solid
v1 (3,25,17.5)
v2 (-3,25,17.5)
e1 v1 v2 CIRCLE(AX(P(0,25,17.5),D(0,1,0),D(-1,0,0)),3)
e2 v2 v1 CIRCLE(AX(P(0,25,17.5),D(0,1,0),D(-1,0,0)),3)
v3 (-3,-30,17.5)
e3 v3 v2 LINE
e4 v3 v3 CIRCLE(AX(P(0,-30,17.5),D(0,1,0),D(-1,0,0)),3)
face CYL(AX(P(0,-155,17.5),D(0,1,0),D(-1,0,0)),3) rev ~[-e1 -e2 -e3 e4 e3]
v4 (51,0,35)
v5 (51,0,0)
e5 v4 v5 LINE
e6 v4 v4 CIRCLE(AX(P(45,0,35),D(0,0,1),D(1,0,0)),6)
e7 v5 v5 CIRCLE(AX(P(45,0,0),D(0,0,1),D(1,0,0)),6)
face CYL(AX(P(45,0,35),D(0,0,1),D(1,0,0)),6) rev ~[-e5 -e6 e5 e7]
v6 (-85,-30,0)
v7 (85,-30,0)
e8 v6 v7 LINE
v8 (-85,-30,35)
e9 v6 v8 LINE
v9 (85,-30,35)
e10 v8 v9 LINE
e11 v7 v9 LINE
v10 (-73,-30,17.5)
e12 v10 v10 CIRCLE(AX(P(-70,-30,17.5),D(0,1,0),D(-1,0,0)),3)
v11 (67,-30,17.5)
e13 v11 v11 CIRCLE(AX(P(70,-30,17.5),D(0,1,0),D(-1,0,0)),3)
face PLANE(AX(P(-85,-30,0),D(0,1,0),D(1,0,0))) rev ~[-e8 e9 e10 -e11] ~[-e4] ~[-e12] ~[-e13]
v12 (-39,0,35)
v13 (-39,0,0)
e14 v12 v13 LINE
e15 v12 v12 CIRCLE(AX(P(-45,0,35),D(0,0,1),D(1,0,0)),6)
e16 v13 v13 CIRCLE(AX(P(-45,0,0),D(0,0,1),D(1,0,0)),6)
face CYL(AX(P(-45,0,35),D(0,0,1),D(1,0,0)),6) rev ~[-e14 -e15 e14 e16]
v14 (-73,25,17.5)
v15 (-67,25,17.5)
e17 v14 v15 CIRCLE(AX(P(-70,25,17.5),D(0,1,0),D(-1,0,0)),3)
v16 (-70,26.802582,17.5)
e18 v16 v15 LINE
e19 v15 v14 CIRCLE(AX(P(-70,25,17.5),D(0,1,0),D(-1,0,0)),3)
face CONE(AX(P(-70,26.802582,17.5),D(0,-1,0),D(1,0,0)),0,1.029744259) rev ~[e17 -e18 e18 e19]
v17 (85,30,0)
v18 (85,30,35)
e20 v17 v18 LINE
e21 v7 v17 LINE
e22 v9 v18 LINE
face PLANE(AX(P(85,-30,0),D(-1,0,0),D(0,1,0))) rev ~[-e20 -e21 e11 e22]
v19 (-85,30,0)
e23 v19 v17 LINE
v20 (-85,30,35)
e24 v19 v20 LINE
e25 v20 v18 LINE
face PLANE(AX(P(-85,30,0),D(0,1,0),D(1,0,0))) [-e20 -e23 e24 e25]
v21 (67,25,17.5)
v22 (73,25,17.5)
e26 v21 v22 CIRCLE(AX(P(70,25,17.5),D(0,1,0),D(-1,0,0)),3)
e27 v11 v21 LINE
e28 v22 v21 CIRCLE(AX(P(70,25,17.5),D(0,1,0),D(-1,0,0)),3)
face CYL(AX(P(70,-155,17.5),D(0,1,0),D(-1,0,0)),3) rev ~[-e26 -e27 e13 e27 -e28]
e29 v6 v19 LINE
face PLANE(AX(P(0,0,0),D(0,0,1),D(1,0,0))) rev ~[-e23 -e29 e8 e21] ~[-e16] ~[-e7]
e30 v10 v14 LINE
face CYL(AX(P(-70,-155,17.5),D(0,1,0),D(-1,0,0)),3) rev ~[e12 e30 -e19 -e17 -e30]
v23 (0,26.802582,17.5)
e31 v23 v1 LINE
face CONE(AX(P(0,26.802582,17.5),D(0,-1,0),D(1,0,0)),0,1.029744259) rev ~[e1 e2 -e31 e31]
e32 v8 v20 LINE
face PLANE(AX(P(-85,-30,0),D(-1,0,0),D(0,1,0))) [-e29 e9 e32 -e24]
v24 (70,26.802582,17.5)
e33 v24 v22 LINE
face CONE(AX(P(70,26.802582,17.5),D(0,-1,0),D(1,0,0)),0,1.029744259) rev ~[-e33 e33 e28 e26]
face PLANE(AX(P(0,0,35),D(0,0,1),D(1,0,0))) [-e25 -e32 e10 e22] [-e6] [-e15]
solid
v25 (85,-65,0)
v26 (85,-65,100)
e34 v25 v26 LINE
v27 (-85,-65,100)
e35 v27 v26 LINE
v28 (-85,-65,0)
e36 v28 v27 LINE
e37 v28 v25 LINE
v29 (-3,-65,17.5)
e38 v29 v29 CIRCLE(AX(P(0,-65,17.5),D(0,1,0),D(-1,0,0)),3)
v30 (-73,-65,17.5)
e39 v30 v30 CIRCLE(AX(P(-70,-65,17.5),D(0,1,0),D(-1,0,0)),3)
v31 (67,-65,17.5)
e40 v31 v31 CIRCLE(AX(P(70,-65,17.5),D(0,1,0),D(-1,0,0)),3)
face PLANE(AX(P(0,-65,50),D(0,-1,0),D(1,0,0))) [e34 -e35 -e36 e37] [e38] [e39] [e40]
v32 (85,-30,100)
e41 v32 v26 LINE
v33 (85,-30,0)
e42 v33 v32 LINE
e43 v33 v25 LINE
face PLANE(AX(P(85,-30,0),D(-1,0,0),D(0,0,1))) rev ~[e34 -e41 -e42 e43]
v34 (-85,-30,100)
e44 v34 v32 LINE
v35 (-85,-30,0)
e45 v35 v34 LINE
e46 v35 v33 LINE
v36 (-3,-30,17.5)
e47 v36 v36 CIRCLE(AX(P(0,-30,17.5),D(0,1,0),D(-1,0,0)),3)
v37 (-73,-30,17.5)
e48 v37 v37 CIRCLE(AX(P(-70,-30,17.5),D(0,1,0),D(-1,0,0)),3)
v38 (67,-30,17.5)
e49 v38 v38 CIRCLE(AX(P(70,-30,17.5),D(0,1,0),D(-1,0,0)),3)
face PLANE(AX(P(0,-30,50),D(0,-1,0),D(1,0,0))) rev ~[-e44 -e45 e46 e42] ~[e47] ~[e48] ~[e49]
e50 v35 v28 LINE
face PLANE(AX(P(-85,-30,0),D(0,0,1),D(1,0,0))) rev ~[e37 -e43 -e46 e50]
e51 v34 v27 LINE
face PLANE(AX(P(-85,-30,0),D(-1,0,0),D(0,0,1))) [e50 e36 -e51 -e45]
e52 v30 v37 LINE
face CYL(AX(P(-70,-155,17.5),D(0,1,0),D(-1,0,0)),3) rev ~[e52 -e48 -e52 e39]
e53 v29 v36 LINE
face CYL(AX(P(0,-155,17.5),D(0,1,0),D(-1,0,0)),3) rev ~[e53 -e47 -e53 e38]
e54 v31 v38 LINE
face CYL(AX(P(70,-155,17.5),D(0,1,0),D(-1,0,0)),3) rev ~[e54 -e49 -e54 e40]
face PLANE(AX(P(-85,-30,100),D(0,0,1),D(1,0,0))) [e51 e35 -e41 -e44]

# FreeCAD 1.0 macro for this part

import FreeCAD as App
import Part
import Sketcher
from FreeCAD import Vector


def add_polygon(sketch, points):
    """Adds a closed chain of lines whose ends are joined by coincident constraints."""
    first, n = sketch.GeometryCount, len(points)
    for a, b in zip(points, points[1:] + points[:1]):
        sketch.addGeometry(Part.LineSegment(App.Vector(*a, 0), App.Vector(*b, 0)), False)
    for i in range(n):
        sketch.addConstraint(Sketcher.Constraint("Coincident", first + i, 2, first + (i + 1) % n, 1))

doc = App.newDocument("Part")
body = doc.addObject("PartDesign::Body", "Body")

sketch1 = doc.addObject("Sketcher::SketchObject", "Sketch")
body.addObject(sketch1)
sketch1.AttachmentSupport = (doc.XY_Plane, [""])
sketch1.MapMode = "FlatFace"
add_polygon(sketch1, [(-85, 30), (-85, -30), (85, -30), (85, 30)])
sketch1.addConstraint(Sketcher.Constraint("Vertical", 0))
sketch1.addConstraint(Sketcher.Constraint("Horizontal", 1))
sketch1.addConstraint(Sketcher.Constraint("Vertical", 2))
sketch1.addConstraint(Sketcher.Constraint("Horizontal", 3))
sketch1.addConstraint(Sketcher.Constraint("Symmetric", 0, 2, 2, 2, -1, 1))
sketch1.addConstraint(Sketcher.Constraint("DistanceX", 1, 1, 1, 2, 170.0))
sketch1.addConstraint(Sketcher.Constraint("DistanceY", 0, 2, 0, 1, 60.0))
pad1 = doc.addObject("PartDesign::Pad", "Pad")
body.addObject(pad1)
pad1.Profile = sketch1
pad1.Length = 35

sketch2 = doc.addObject("Sketcher::SketchObject", "Sketch001")
body.addObject(sketch2)
sketch2.AttachmentSupport = (doc.XY_Plane, [""])
sketch2.MapMode = "FlatFace"
sketch2.AttachmentOffset = App.Placement(Vector(0, 0, 35), App.Rotation())
sketch2.addGeometry(Part.Circle(Vector(45, 0, 0), Vector(0, 0, 1), 6), False)
sketch2.addGeometry(Part.Circle(Vector(-45, 0, 0), Vector(0, 0, 1), 6), False)
sketch2.addConstraint(Sketcher.Constraint("Equal", 0, 1))
sketch2.addConstraint(Sketcher.Constraint("Symmetric", 0, 3, 1, 3, -1, 1))
sketch2.addConstraint(Sketcher.Constraint("PointOnObject", 0, 3, -1))
sketch2.addConstraint(Sketcher.Constraint("Diameter", 0, 12.0))
sketch2.addConstraint(Sketcher.Constraint("DistanceX", -1, 1, 0, 3, 45.0))
pocket1 = doc.addObject("PartDesign::Pocket", "Pocket")
body.addObject(pocket1)
pocket1.Profile = sketch2
pocket1.Type = "ThroughAll"

sketch3 = doc.addObject("Sketcher::SketchObject", "Sketch002")
body.addObject(sketch3)
sketch3.AttachmentSupport = (doc.XZ_Plane, [""])
sketch3.MapMode = "FlatFace"
sketch3.AttachmentOffset = App.Placement(Vector(0, 0, 65), App.Rotation())
sketch3.addGeometry(Part.Circle(Vector(-70, 17.5, 0), Vector(0, 0, 1), 3), False)
sketch3.addGeometry(Part.Circle(Vector(0, 17.5, 0), Vector(0, 0, 1), 3), False)
sketch3.addGeometry(Part.Circle(Vector(70, 17.5, 0), Vector(0, 0, 1), 3), False)
sketch3.addConstraint(Sketcher.Constraint("Equal", 0, 1))
sketch3.addConstraint(Sketcher.Constraint("Equal", 1, 2))
sketch3.addConstraint(Sketcher.Constraint("Symmetric", 0, 3, 2, 3, -2))
sketch3.addConstraint(Sketcher.Constraint("PointOnObject", 1, 3, -2))
sketch3.addConstraint(Sketcher.Constraint("Horizontal", 0, 3, 1, 3))
sketch3.addConstraint(Sketcher.Constraint("Diameter", 0, 6.0))
sketch3.addConstraint(Sketcher.Constraint("DistanceX", 0, 3, -1, 1, 70.0))
sketch3.addConstraint(Sketcher.Constraint("DistanceY", -1, 1, 0, 3, 17.5))
doc.recompute()
hole = doc.addObject("PartDesign::Hole", "Hole")
body.addObject(hole)
hole.Profile = sketch3
hole.ThreadType = "None"
hole.Diameter = 6
hole.DepthType = "Dimension"
hole.Depth = 90
hole.DrillPoint = "Angled"
hole.DrillPointAngle = 118
body2 = doc.addObject("PartDesign::Body", "Body001")

sketch4 = doc.addObject("Sketcher::SketchObject", "Sketch003")
body2.addObject(sketch4)
sketch4.AttachmentSupport = (doc.getObject("XZ_Plane001"), [""])
sketch4.MapMode = "FlatFace"
sketch4.AttachmentOffset = App.Placement(Vector(0, 0, 30), App.Rotation())
add_polygon(sketch4, [(-85, 100), (-85, 0), (85, 0), (85, 100)])
sketch4.addConstraint(Sketcher.Constraint("Vertical", 0))
sketch4.addConstraint(Sketcher.Constraint("Horizontal", 1))
sketch4.addConstraint(Sketcher.Constraint("Vertical", 2))
sketch4.addConstraint(Sketcher.Constraint("Horizontal", 3))
sketch4.addConstraint(Sketcher.Constraint("Symmetric", 0, 2, 1, 2, -1, 1))
sketch4.addConstraint(Sketcher.Constraint("DistanceX", 1, 1, 1, 2, 170.0))
sketch4.addConstraint(Sketcher.Constraint("DistanceY", 0, 2, 0, 1, 100.0))
pad2 = doc.addObject("PartDesign::Pad", "Pad001")
body2.addObject(pad2)
pad2.Profile = sketch4
pad2.Length = 35

sketch5 = doc.addObject("Sketcher::SketchObject", "Sketch004")
body2.addObject(sketch5)
sketch5.AttachmentSupport = (doc.getObject("XZ_Plane001"), [""])
sketch5.MapMode = "FlatFace"
sketch5.AttachmentOffset = App.Placement(Vector(0, 0, 65), App.Rotation())
sketch5.addGeometry(Part.Circle(Vector(-70, 17.5, 0), Vector(0, 0, 1), 3), False)
sketch5.addGeometry(Part.Circle(Vector(0, 17.5, 0), Vector(0, 0, 1), 3), False)
sketch5.addGeometry(Part.Circle(Vector(70, 17.5, 0), Vector(0, 0, 1), 3), False)
sketch5.addConstraint(Sketcher.Constraint("Equal", 0, 1))
sketch5.addConstraint(Sketcher.Constraint("Equal", 1, 2))
sketch5.addConstraint(Sketcher.Constraint("Symmetric", 0, 3, 2, 3, -2))
sketch5.addConstraint(Sketcher.Constraint("PointOnObject", 1, 3, -2))
sketch5.addConstraint(Sketcher.Constraint("Horizontal", 0, 3, 1, 3))
sketch5.addConstraint(Sketcher.Constraint("Diameter", 0, 6.0))
sketch5.addConstraint(Sketcher.Constraint("DistanceX", 0, 3, -1, 1, 70.0))
sketch5.addConstraint(Sketcher.Constraint("DistanceY", -1, 1, 0, 3, 17.5))
doc.recompute()
hole2 = doc.addObject("PartDesign::Hole", "Hole001")
body2.addObject(hole2)
hole2.Profile = sketch5
hole2.ThreadType = "None"
hole2.Diameter = 6
hole2.DepthType = "Dimension"
hole2.Depth = 90
hole2.DrillPoint = "Angled"
hole2.DrillPointAngle = 118

doc.recompute()
